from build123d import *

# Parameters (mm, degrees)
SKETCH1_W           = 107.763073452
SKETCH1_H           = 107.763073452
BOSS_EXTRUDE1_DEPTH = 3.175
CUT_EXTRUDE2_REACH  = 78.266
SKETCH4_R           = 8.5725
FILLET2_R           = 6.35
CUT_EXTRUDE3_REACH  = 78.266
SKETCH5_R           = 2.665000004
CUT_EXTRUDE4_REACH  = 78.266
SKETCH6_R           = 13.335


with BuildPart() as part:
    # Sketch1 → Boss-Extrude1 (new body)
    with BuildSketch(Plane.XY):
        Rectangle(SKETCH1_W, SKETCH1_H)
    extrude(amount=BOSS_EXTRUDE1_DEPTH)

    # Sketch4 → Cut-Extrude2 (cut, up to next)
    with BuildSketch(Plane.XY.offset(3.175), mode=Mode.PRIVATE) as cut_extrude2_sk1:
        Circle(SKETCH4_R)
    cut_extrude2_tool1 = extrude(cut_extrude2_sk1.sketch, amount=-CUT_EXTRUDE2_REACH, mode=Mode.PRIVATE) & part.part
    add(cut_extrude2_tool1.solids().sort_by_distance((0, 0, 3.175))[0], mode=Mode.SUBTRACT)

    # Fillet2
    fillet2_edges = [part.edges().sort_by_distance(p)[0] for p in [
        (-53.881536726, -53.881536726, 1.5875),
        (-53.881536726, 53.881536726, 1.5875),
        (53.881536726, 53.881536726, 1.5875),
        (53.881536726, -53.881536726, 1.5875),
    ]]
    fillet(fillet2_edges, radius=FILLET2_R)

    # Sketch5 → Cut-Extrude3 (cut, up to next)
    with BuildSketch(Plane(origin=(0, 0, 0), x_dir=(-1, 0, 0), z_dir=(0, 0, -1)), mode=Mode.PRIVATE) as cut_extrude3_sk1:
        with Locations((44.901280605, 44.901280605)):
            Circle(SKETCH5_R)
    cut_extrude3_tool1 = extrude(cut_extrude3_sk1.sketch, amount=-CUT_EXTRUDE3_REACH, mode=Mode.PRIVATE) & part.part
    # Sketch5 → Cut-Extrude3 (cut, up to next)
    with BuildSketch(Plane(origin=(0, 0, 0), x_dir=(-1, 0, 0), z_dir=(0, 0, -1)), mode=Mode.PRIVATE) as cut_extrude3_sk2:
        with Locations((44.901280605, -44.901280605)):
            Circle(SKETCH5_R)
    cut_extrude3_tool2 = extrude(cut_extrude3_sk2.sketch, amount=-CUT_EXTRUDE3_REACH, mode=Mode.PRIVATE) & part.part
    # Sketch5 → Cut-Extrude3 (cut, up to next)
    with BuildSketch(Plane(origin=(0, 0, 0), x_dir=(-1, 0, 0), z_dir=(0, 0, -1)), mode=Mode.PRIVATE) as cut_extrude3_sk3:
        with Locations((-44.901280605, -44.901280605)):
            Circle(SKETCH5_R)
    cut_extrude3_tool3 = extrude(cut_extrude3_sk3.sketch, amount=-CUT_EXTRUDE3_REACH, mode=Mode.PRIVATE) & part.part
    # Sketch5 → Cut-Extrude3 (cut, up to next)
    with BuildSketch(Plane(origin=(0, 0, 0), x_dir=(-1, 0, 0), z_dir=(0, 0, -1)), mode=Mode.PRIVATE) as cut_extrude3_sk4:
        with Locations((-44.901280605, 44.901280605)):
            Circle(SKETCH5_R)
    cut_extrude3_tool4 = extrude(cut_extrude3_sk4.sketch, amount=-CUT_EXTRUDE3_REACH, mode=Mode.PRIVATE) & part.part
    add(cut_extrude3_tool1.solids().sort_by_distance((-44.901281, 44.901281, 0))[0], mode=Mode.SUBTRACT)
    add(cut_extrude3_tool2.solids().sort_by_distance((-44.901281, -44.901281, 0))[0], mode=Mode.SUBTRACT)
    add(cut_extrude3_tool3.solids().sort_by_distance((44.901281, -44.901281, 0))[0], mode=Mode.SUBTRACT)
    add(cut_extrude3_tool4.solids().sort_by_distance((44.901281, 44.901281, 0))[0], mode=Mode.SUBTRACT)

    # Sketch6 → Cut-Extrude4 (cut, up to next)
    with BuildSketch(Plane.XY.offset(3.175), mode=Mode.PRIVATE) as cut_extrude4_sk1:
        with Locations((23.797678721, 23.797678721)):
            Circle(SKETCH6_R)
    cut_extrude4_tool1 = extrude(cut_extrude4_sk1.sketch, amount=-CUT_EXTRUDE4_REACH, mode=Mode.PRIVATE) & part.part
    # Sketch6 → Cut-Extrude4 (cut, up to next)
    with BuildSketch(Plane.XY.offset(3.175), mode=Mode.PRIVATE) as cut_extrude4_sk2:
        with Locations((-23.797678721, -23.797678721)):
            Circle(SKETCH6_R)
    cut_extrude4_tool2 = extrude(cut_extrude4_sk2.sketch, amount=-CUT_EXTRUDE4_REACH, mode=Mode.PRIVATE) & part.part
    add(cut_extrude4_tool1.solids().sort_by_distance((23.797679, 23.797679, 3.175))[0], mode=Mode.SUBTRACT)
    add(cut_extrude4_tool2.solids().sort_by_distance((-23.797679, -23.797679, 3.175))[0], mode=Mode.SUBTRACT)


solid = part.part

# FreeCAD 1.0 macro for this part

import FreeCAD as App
import Part
import Sketcher
Q = App.Units.Quantity


def edges_at(feature, points):
    """Names of the edges that pass closest to the given points."""
    edges = feature.Shape.Edges
    near = lambda p: min(range(len(edges)), key=lambda i: edges[i].distToShape(Part.Vertex(*p))[0])
    return sorted({f"Edge{near(p) + 1}" for p in points})

doc = App.newDocument("Part")
body = doc.addObject("PartDesign::Body", "Body")

# Sketch on XY plane
sketch1 = body.newObject("Sketcher::SketchObject", "Sketch")
sketch1.AttachmentSupport = (doc.getObject("XY_Plane"), [""])
sketch1.MapMode = "FlatFace"
sketch1.addGeometry([
    Part.LineSegment(App.Vector(-53.881537, 53.881537, 0), App.Vector(-53.881537, -53.881537, 0)),
    Part.LineSegment(App.Vector(-53.881537, -53.881537, 0), App.Vector(53.881537, -53.881537, 0)),
    Part.LineSegment(App.Vector(53.881537, -53.881537, 0), App.Vector(53.881537, 53.881537, 0)),
    Part.LineSegment(App.Vector(53.881537, 53.881537, 0), App.Vector(-53.881537, 53.881537, 0)),
], False)
sketch1.addConstraint([
    Sketcher.Constraint("Coincident", 0, 2, 1, 1),
    Sketcher.Constraint("Coincident", 1, 2, 2, 1),
    Sketcher.Constraint("Coincident", 2, 2, 3, 1),
    Sketcher.Constraint("Coincident", 3, 2, 0, 1),
    Sketcher.Constraint("Vertical", 0),
    Sketcher.Constraint("Horizontal", 1),
    Sketcher.Constraint("Vertical", 2),
    Sketcher.Constraint("Horizontal", 3),
    Sketcher.Constraint("Symmetric", 0, 2, 2, 2, -1, 1),
    Sketcher.Constraint("Equal", 3, 0),
    Sketcher.Constraint("DistanceX", 1, 1, 1, 2, Q("107.763073 mm")),
])
pad1 = body.newObject("PartDesign::Pad", "Pad")
pad1.Profile = sketch1
pad1.Length = Q("0.125 in")

# Sketch on XY plane
sketch2 = body.newObject("Sketcher::SketchObject", "Sketch001")
sketch2.AttachmentSupport = (doc.getObject("XY_Plane"), [""])
sketch2.MapMode = "FlatFace"
sketch2.AttachmentOffset = App.Placement(App.Vector(0, 0, 0.125 * 25.4), App.Rotation())
sketch2.addGeometry(Part.Circle(App.Vector(0, 0, 0), App.Vector(0, 0, 1), 8.5725), False)
sketch2.addConstraint([
    Sketcher.Constraint("Coincident", 0, 3, -1, 1),
    Sketcher.Constraint("Diameter", 0, Q("0.675 in")),
])
pocket1 = body.newObject("PartDesign::Pocket", "Pocket")
pocket1.Profile = sketch2
pocket1.Type = "UpToFirst"
doc.recompute()

fillet = body.newObject("PartDesign::Fillet", "Fillet")
fillet.Base = (pocket1, edges_at(pocket1, [
    (-53.882, -53.882, 1.587),
    (-53.882, 53.882, 1.587),
    (53.882, 53.882, 1.587),
    (53.882, -53.882, 1.587),
]))
fillet.Radius = Q("0.25 in")

# Sketch on XY plane
sketch3 = body.newObject("Sketcher::SketchObject", "Sketch002")
sketch3.AttachmentSupport = (doc.getObject("XY_Plane"), [""])
sketch3.MapMode = "FlatFace"
sketch3.addGeometry(Part.Circle(App.Vector(-44.901281, 44.901281, 0), App.Vector(0, 0, 1), 2.665), False)
sketch3.addConstraint([
    Sketcher.Constraint("Diameter", 0, Q("5.33 mm")),
    Sketcher.Constraint("DistanceX", 0, 3, -1, 1, Q("44.901281 mm")),
    Sketcher.Constraint("DistanceY", -1, 1, 0, 3, Q("44.901281 mm")),
])
pocket2 = body.newObject("PartDesign::Pocket", "Pocket001")
pocket2.Profile = sketch3
pocket2.Type = "UpToFirst"
pocket2.Reversed = True

# Sketch on XY plane
sketch4 = body.newObject("Sketcher::SketchObject", "Sketch003")
sketch4.AttachmentSupport = (doc.getObject("XY_Plane"), [""])
sketch4.MapMode = "FlatFace"
sketch4.addGeometry(Part.Circle(App.Vector(-44.901281, -44.901281, 0), App.Vector(0, 0, 1), 2.665), False)
sketch4.addConstraint([
    Sketcher.Constraint("Diameter", 0, Q("5.33 mm")),
    Sketcher.Constraint("DistanceX", 0, 3, -1, 1, Q("44.901281 mm")),
    Sketcher.Constraint("DistanceY", 0, 3, -1, 1, Q("44.901281 mm")),
])
pocket3 = body.newObject("PartDesign::Pocket", "Pocket002")
pocket3.Profile = sketch4
pocket3.Type = "UpToFirst"
pocket3.Reversed = True

# Sketch on XY plane
sketch5 = body.newObject("Sketcher::SketchObject", "Sketch004")
sketch5.AttachmentSupport = (doc.getObject("XY_Plane"), [""])
sketch5.MapMode = "FlatFace"
sketch5.addGeometry(Part.Circle(App.Vector(44.901281, -44.901281, 0), App.Vector(0, 0, 1), 2.665), False)
sketch5.addConstraint([
    Sketcher.Constraint("Diameter", 0, Q("5.33 mm")),
    Sketcher.Constraint("DistanceX", -1, 1, 0, 3, Q("44.901281 mm")),
    Sketcher.Constraint("DistanceY", 0, 3, -1, 1, Q("44.901281 mm")),
])
pocket4 = body.newObject("PartDesign::Pocket", "Pocket003")
pocket4.Profile = sketch5
pocket4.Type = "UpToFirst"
pocket4.Reversed = True

# Sketch on XY plane
sketch6 = body.newObject("Sketcher::SketchObject", "Sketch005")
sketch6.AttachmentSupport = (doc.getObject("XY_Plane"), [""])
sketch6.MapMode = "FlatFace"
sketch6.addGeometry(Part.Circle(App.Vector(44.901281, 44.901281, 0), App.Vector(0, 0, 1), 2.665), False)
sketch6.addConstraint([
    Sketcher.Constraint("Diameter", 0, Q("5.33 mm")),
    Sketcher.Constraint("DistanceX", -1, 1, 0, 3, Q("44.901281 mm")),
    Sketcher.Constraint("DistanceY", -1, 1, 0, 3, Q("44.901281 mm")),
])
pocket5 = body.newObject("PartDesign::Pocket", "Pocket004")
pocket5.Profile = sketch6
pocket5.Type = "UpToFirst"
pocket5.Reversed = True

# Sketch on XY plane
sketch7 = body.newObject("Sketcher::SketchObject", "Sketch006")
sketch7.AttachmentSupport = (doc.getObject("XY_Plane"), [""])
sketch7.MapMode = "FlatFace"
sketch7.AttachmentOffset = App.Placement(App.Vector(0, 0, 0.125 * 25.4), App.Rotation())
sketch7.addGeometry(Part.Circle(App.Vector(23.797679, 23.797679, 0), App.Vector(0, 0, 1), 13.335), False)
sketch7.addConstraint([
    Sketcher.Constraint("Diameter", 0, Q("1.05 in")),
    Sketcher.Constraint("DistanceX", -1, 1, 0, 3, Q("23.797679 mm")),
    Sketcher.Constraint("DistanceY", -1, 1, 0, 3, Q("23.797679 mm")),
])
pocket6 = body.newObject("PartDesign::Pocket", "Pocket005")
pocket6.Profile = sketch7
pocket6.Type = "UpToFirst"

# Sketch on XY plane
sketch8 = body.newObject("Sketcher::SketchObject", "Sketch007")
sketch8.AttachmentSupport = (doc.getObject("XY_Plane"), [""])
sketch8.MapMode = "FlatFace"
sketch8.AttachmentOffset = App.Placement(App.Vector(0, 0, 0.125 * 25.4), App.Rotation())
sketch8.addGeometry(Part.Circle(App.Vector(-23.797679, -23.797679, 0), App.Vector(0, 0, 1), 13.335), False)
sketch8.addConstraint([
    Sketcher.Constraint("Diameter", 0, Q("1.05 in")),
    Sketcher.Constraint("DistanceX", 0, 3, -1, 1, Q("23.797679 mm")),
    Sketcher.Constraint("DistanceY", 0, 3, -1, 1, Q("23.797679 mm")),
])
pocket7 = body.newObject("PartDesign::Pocket", "Pocket006")
pocket7.Profile = sketch8
pocket7.Type = "UpToFirst"

doc.recompute()
